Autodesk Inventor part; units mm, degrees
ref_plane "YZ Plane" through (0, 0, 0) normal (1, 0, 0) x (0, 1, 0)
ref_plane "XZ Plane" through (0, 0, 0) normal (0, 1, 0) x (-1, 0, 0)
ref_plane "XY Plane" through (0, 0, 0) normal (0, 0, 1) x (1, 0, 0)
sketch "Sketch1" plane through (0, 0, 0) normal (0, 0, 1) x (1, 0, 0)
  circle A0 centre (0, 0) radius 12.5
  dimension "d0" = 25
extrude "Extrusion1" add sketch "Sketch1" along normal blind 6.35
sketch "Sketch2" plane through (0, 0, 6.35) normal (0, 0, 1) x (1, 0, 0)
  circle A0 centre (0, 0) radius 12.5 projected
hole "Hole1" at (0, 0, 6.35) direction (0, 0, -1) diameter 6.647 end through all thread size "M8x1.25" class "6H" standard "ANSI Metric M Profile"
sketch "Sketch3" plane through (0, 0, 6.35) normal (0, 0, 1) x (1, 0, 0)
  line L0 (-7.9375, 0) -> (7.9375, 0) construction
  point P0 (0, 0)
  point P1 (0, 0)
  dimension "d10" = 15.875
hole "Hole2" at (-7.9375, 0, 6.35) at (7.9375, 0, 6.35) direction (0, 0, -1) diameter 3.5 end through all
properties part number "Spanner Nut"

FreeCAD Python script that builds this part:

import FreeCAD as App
import Part
import Sketcher

V = App.Vector

doc = App.newDocument("Part")
params = doc.addObject("Spreadsheet::Sheet", "Params")
for row, (alias, value) in enumerate([
    ("sketch1_diameter", "25 mm"),
    ("pad1_length", "6.35 mm"),
    ("hole_diameter", "6.647 mm"),
    ("sketch3_diameter", "3.5 mm"),
    ("hole2_diameter", "3.5 mm"),
], start=1):
    params.set(f"A{row}", alias)
    params.set(f"B{row}", "=" + value)
    params.setAlias(f"B{row}", alias)

body = doc.addObject("PartDesign::Body", "Body")

# Sketch on XY plane
sketch1 = doc.addObject("Sketcher::SketchObject", "Sketch")
body.addObject(sketch1)
sketch1.AttachmentSupport = (doc.XY_Plane, [""])
sketch1.MapMode = "FlatFace"
sketch1.addGeometry(Part.Circle(V(0, 0, 0), V(0, 0, 1), 12), False)
sketch1.addConstraint([
    Sketcher.Constraint("Coincident", 0, 3, -1, 1),
    Sketcher.Constraint("Diameter", 0, 25.0),
])
sketch1.setExpression("Constraints[1]", "Params.sketch1_diameter")
pad1 = doc.addObject("PartDesign::Pad", "Pad")
body.addObject(pad1)
pad1.Profile = sketch1
pad1.setExpression("Length", "Params.pad1_length")

# Sketch on XY plane
sketch2 = doc.addObject("Sketcher::SketchObject", "Sketch001")
body.addObject(sketch2)
sketch2.AttachmentSupport = (doc.XY_Plane, [""])
sketch2.MapMode = "FlatFace"
sketch2.AttachmentOffset = App.Placement(V(0, 0, 6.35), App.Rotation())
sketch2.addGeometry(Part.Circle(V(0, 0, 0), V(0, 0, 1), 3.3), False)
sketch2.addConstraint([
    Sketcher.Constraint("Coincident", 0, 3, -1, 1),
    Sketcher.Constraint("Diameter", 0, 6.647),
])
doc.recompute()
hole = doc.addObject("PartDesign::Hole", "Hole")
body.addObject(hole)
hole.Profile = sketch2
hole.ThreadType = "None"
hole.setExpression("Diameter", "Params.hole_diameter")
hole.DepthType = "ThroughAll"

# Sketch on XY plane
sketch3 = doc.addObject("Sketcher::SketchObject", "Sketch002")
body.addObject(sketch3)
sketch3.AttachmentSupport = (doc.XY_Plane, [""])
sketch3.MapMode = "FlatFace"
sketch3.AttachmentOffset = App.Placement(V(0, 0, 6.35), App.Rotation())
sketch3.addGeometry([
    Part.Circle(V(-7.9, 0, 0), V(0, 0, 1), 1.8),
    Part.Circle(V(7.9, 0, 0), V(0, 0, 1), 1.8),
], False)
sketch3.addConstraint([
    Sketcher.Constraint("Equal", 0, 1),
    Sketcher.Constraint("Symmetric", 0, 3, 1, 3, -1, 1),
    Sketcher.Constraint("PointOnObject", 0, 3, -1),
    Sketcher.Constraint("Diameter", 0, 3.5),
    Sketcher.Constraint("DistanceX", 0, 3, 1, 3, 15.875),
])
sketch3.setExpression("Constraints[3]", "Params.sketch3_diameter")
doc.recompute()
hole2 = doc.addObject("PartDesign::Hole", "Hole001")
body.addObject(hole2)
hole2.Profile = sketch3
hole2.ThreadType = "None"
hole2.setExpression("Diameter", "Params.hole2_diameter")
hole2.DepthType = "ThroughAll"

doc.recompute()
